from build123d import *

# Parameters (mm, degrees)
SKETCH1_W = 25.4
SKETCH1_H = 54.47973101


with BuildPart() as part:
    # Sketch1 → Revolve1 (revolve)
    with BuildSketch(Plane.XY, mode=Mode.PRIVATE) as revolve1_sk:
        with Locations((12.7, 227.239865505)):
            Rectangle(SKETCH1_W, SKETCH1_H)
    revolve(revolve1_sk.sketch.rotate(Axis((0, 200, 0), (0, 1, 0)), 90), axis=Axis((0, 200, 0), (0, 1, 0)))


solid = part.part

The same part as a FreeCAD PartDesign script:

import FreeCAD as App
import Part
import Sketcher
Q = App.Units.Quantity


def add_polygon(sketch, points):
    """Adds a closed chain of lines whose ends are joined by coincident constraints."""
    first, n = sketch.GeometryCount, len(points)
    for a, b in zip(points, points[1:] + points[:1]):
        sketch.addGeometry(Part.LineSegment(App.Vector(*a, 0), App.Vector(*b, 0)), False)
    for i in range(n):
        sketch.addConstraint(Sketcher.Constraint("Coincident", first + i, 2, first + (i + 1) % n, 1))

doc = App.newDocument("Part")
body = doc.addObject("PartDesign::Body", "Body")

# Sketch on XY plane
sketch1 = doc.addObject("Sketcher::SketchObject", "Sketch")
body.addObject(sketch1)
sketch1.AttachmentSupport = (doc.XY_Plane, [""])
sketch1.MapMode = "FlatFace"
add_polygon(sketch1, [(0, 254.479731), (0, 200), (25.4, 200), (25.4, 254.479731)])  # lines 0-3
sketch1.addConstraint(Sketcher.Constraint("Vertical", 0))
sketch1.addConstraint(Sketcher.Constraint("Horizontal", 1))
sketch1.addConstraint(Sketcher.Constraint("Vertical", 2))
sketch1.addConstraint(Sketcher.Constraint("Horizontal", 3))
sketch1.addConstraint(Sketcher.Constraint("PointOnObject", 0, 2, -2))
sketch1.addConstraint(Sketcher.Constraint("DistanceX", 1, 1, 1, 2, Q("1 in")))
sketch1.addConstraint(Sketcher.Constraint("DistanceY", 0, 2, 0, 1, Q("54.479731 mm")))
sketch1.addConstraint(Sketcher.Constraint("DistanceY", -1, 1, 0, 2, Q("200 mm")))
revolution = doc.addObject("PartDesign::Revolution", "Revolution")
body.addObject(revolution)
revolution.Profile = sketch1
revolution.ReferenceAxis = (sketch1, ["V_Axis"])
revolution.Angle = 360

doc.recompute()
